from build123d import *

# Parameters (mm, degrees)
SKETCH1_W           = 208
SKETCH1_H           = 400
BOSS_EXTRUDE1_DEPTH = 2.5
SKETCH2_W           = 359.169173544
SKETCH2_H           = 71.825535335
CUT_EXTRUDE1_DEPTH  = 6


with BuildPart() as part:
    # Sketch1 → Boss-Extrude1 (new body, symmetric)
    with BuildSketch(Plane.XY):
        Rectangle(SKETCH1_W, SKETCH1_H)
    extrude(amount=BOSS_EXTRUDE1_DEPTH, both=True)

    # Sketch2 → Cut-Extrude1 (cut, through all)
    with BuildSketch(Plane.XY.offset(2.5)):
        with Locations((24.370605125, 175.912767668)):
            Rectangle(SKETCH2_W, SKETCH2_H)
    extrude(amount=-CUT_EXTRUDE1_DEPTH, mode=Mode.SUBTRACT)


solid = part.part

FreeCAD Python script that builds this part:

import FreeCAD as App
import Part
import Sketcher
from FreeCAD import Vector

doc = App.newDocument("Part")
params = doc.addObject("Spreadsheet::Sheet", "Params")
for row, (alias, value) in enumerate([
    ("sketch1_width", "208 mm"),
    ("sketch1_height", "400 mm"),
    ("pad1_length", "5 mm"),
], start=1):
    params.set(f"A{row}", alias)
    params.set(f"B{row}", "=" + value)
    params.setAlias(f"B{row}", alias)

body = doc.addObject("PartDesign::Body", "Body")

# Sketch on XY plane
sketch1 = body.newObject("Sketcher::SketchObject", "Sketch")
sketch1.AttachmentSupport = (doc.getObject("XY_Plane"), [""])
sketch1.MapMode = "FlatFace"
sketch1.addGeometry(Part.LineSegment(Vector(-104, 200, 0), Vector(-104, -200, 0)), False)
sketch1.addGeometry(Part.LineSegment(Vector(-104, -200, 0), Vector(104, -200, 0)), False)
sketch1.addGeometry(Part.LineSegment(Vector(104, -200, 0), Vector(104, 200, 0)), False)
sketch1.addGeometry(Part.LineSegment(Vector(104, 200, 0), Vector(-104, 200, 0)), False)
sketch1.addConstraint(Sketcher.Constraint("Coincident", 0, 2, 1, 1))
sketch1.addConstraint(Sketcher.Constraint("Coincident", 1, 2, 2, 1))
sketch1.addConstraint(Sketcher.Constraint("Coincident", 2, 2, 3, 1))
sketch1.addConstraint(Sketcher.Constraint("Coincident", 3, 2, 0, 1))
sketch1.addConstraint(Sketcher.Constraint("Vertical", 0))
sketch1.addConstraint(Sketcher.Constraint("Horizontal", 1))
sketch1.addConstraint(Sketcher.Constraint("Vertical", 2))
sketch1.addConstraint(Sketcher.Constraint("Horizontal", 3))
sketch1.addConstraint(Sketcher.Constraint("Symmetric", 0, 2, 2, 2, -1, 1))
sketch1.addConstraint(Sketcher.Constraint("DistanceX", 1, 1, 1, 2, 208.0))
sketch1.addConstraint(Sketcher.Constraint("DistanceY", 0, 2, 0, 1, 400.0))
sketch1.setExpression("Constraints[9]", "Params.sketch1_width")
sketch1.setExpression("Constraints[10]", "Params.sketch1_height")
pad1 = body.newObject("PartDesign::Pad", "Pad")
pad1.Profile = sketch1
pad1.setExpression("Length", "Params.pad1_length")
pad1.Midplane = True

# Sketch on XY plane
sketch2 = body.newObject("Sketcher::SketchObject", "Sketch001")
sketch2.AttachmentSupport = (doc.getObject("XY_Plane"), [""])
sketch2.MapMode = "FlatFace"
sketch2.AttachmentOffset = App.Placement(Vector(0, 0, 2.5), App.Rotation())
sketch2.addGeometry(Part.LineSegment(Vector(-155, 212, 0), Vector(-155, 140, 0)), False)
sketch2.addGeometry(Part.LineSegment(Vector(-155, 140, 0), Vector(204, 140, 0)), False)
sketch2.addGeometry(Part.LineSegment(Vector(204, 140, 0), Vector(204, 212, 0)), False)
sketch2.addGeometry(Part.LineSegment(Vector(204, 212, 0), Vector(-155, 212, 0)), False)
sketch2.addConstraint(Sketcher.Constraint("Coincident", 0, 2, 1, 1))
sketch2.addConstraint(Sketcher.Constraint("Coincident", 1, 2, 2, 1))
sketch2.addConstraint(Sketcher.Constraint("Coincident", 2, 2, 3, 1))
sketch2.addConstraint(Sketcher.Constraint("Coincident", 3, 2, 0, 1))
sketch2.addConstraint(Sketcher.Constraint("Vertical", 0))
sketch2.addConstraint(Sketcher.Constraint("Horizontal", 1))
sketch2.addConstraint(Sketcher.Constraint("Vertical", 2))
sketch2.addConstraint(Sketcher.Constraint("Horizontal", 3))
sketch2.addConstraint(Sketcher.Constraint("DistanceY", -1, 1, 0, 2, 140.0))
sketch2.addConstraint(Sketcher.Constraint("DistanceX", 1, 1, 1, 2, 359.169174))
sketch2.addConstraint(Sketcher.Constraint("DistanceY", 0, 2, 0, 1, 71.825535))
sketch2.addConstraint(Sketcher.Constraint("DistanceX", 0, 2, -1, 1, 155.213982))
pocket1 = body.newObject("PartDesign::Pocket", "Pocket")
pocket1.Profile = sketch2
pocket1.Type = "ThroughAll"

doc.recompute()
